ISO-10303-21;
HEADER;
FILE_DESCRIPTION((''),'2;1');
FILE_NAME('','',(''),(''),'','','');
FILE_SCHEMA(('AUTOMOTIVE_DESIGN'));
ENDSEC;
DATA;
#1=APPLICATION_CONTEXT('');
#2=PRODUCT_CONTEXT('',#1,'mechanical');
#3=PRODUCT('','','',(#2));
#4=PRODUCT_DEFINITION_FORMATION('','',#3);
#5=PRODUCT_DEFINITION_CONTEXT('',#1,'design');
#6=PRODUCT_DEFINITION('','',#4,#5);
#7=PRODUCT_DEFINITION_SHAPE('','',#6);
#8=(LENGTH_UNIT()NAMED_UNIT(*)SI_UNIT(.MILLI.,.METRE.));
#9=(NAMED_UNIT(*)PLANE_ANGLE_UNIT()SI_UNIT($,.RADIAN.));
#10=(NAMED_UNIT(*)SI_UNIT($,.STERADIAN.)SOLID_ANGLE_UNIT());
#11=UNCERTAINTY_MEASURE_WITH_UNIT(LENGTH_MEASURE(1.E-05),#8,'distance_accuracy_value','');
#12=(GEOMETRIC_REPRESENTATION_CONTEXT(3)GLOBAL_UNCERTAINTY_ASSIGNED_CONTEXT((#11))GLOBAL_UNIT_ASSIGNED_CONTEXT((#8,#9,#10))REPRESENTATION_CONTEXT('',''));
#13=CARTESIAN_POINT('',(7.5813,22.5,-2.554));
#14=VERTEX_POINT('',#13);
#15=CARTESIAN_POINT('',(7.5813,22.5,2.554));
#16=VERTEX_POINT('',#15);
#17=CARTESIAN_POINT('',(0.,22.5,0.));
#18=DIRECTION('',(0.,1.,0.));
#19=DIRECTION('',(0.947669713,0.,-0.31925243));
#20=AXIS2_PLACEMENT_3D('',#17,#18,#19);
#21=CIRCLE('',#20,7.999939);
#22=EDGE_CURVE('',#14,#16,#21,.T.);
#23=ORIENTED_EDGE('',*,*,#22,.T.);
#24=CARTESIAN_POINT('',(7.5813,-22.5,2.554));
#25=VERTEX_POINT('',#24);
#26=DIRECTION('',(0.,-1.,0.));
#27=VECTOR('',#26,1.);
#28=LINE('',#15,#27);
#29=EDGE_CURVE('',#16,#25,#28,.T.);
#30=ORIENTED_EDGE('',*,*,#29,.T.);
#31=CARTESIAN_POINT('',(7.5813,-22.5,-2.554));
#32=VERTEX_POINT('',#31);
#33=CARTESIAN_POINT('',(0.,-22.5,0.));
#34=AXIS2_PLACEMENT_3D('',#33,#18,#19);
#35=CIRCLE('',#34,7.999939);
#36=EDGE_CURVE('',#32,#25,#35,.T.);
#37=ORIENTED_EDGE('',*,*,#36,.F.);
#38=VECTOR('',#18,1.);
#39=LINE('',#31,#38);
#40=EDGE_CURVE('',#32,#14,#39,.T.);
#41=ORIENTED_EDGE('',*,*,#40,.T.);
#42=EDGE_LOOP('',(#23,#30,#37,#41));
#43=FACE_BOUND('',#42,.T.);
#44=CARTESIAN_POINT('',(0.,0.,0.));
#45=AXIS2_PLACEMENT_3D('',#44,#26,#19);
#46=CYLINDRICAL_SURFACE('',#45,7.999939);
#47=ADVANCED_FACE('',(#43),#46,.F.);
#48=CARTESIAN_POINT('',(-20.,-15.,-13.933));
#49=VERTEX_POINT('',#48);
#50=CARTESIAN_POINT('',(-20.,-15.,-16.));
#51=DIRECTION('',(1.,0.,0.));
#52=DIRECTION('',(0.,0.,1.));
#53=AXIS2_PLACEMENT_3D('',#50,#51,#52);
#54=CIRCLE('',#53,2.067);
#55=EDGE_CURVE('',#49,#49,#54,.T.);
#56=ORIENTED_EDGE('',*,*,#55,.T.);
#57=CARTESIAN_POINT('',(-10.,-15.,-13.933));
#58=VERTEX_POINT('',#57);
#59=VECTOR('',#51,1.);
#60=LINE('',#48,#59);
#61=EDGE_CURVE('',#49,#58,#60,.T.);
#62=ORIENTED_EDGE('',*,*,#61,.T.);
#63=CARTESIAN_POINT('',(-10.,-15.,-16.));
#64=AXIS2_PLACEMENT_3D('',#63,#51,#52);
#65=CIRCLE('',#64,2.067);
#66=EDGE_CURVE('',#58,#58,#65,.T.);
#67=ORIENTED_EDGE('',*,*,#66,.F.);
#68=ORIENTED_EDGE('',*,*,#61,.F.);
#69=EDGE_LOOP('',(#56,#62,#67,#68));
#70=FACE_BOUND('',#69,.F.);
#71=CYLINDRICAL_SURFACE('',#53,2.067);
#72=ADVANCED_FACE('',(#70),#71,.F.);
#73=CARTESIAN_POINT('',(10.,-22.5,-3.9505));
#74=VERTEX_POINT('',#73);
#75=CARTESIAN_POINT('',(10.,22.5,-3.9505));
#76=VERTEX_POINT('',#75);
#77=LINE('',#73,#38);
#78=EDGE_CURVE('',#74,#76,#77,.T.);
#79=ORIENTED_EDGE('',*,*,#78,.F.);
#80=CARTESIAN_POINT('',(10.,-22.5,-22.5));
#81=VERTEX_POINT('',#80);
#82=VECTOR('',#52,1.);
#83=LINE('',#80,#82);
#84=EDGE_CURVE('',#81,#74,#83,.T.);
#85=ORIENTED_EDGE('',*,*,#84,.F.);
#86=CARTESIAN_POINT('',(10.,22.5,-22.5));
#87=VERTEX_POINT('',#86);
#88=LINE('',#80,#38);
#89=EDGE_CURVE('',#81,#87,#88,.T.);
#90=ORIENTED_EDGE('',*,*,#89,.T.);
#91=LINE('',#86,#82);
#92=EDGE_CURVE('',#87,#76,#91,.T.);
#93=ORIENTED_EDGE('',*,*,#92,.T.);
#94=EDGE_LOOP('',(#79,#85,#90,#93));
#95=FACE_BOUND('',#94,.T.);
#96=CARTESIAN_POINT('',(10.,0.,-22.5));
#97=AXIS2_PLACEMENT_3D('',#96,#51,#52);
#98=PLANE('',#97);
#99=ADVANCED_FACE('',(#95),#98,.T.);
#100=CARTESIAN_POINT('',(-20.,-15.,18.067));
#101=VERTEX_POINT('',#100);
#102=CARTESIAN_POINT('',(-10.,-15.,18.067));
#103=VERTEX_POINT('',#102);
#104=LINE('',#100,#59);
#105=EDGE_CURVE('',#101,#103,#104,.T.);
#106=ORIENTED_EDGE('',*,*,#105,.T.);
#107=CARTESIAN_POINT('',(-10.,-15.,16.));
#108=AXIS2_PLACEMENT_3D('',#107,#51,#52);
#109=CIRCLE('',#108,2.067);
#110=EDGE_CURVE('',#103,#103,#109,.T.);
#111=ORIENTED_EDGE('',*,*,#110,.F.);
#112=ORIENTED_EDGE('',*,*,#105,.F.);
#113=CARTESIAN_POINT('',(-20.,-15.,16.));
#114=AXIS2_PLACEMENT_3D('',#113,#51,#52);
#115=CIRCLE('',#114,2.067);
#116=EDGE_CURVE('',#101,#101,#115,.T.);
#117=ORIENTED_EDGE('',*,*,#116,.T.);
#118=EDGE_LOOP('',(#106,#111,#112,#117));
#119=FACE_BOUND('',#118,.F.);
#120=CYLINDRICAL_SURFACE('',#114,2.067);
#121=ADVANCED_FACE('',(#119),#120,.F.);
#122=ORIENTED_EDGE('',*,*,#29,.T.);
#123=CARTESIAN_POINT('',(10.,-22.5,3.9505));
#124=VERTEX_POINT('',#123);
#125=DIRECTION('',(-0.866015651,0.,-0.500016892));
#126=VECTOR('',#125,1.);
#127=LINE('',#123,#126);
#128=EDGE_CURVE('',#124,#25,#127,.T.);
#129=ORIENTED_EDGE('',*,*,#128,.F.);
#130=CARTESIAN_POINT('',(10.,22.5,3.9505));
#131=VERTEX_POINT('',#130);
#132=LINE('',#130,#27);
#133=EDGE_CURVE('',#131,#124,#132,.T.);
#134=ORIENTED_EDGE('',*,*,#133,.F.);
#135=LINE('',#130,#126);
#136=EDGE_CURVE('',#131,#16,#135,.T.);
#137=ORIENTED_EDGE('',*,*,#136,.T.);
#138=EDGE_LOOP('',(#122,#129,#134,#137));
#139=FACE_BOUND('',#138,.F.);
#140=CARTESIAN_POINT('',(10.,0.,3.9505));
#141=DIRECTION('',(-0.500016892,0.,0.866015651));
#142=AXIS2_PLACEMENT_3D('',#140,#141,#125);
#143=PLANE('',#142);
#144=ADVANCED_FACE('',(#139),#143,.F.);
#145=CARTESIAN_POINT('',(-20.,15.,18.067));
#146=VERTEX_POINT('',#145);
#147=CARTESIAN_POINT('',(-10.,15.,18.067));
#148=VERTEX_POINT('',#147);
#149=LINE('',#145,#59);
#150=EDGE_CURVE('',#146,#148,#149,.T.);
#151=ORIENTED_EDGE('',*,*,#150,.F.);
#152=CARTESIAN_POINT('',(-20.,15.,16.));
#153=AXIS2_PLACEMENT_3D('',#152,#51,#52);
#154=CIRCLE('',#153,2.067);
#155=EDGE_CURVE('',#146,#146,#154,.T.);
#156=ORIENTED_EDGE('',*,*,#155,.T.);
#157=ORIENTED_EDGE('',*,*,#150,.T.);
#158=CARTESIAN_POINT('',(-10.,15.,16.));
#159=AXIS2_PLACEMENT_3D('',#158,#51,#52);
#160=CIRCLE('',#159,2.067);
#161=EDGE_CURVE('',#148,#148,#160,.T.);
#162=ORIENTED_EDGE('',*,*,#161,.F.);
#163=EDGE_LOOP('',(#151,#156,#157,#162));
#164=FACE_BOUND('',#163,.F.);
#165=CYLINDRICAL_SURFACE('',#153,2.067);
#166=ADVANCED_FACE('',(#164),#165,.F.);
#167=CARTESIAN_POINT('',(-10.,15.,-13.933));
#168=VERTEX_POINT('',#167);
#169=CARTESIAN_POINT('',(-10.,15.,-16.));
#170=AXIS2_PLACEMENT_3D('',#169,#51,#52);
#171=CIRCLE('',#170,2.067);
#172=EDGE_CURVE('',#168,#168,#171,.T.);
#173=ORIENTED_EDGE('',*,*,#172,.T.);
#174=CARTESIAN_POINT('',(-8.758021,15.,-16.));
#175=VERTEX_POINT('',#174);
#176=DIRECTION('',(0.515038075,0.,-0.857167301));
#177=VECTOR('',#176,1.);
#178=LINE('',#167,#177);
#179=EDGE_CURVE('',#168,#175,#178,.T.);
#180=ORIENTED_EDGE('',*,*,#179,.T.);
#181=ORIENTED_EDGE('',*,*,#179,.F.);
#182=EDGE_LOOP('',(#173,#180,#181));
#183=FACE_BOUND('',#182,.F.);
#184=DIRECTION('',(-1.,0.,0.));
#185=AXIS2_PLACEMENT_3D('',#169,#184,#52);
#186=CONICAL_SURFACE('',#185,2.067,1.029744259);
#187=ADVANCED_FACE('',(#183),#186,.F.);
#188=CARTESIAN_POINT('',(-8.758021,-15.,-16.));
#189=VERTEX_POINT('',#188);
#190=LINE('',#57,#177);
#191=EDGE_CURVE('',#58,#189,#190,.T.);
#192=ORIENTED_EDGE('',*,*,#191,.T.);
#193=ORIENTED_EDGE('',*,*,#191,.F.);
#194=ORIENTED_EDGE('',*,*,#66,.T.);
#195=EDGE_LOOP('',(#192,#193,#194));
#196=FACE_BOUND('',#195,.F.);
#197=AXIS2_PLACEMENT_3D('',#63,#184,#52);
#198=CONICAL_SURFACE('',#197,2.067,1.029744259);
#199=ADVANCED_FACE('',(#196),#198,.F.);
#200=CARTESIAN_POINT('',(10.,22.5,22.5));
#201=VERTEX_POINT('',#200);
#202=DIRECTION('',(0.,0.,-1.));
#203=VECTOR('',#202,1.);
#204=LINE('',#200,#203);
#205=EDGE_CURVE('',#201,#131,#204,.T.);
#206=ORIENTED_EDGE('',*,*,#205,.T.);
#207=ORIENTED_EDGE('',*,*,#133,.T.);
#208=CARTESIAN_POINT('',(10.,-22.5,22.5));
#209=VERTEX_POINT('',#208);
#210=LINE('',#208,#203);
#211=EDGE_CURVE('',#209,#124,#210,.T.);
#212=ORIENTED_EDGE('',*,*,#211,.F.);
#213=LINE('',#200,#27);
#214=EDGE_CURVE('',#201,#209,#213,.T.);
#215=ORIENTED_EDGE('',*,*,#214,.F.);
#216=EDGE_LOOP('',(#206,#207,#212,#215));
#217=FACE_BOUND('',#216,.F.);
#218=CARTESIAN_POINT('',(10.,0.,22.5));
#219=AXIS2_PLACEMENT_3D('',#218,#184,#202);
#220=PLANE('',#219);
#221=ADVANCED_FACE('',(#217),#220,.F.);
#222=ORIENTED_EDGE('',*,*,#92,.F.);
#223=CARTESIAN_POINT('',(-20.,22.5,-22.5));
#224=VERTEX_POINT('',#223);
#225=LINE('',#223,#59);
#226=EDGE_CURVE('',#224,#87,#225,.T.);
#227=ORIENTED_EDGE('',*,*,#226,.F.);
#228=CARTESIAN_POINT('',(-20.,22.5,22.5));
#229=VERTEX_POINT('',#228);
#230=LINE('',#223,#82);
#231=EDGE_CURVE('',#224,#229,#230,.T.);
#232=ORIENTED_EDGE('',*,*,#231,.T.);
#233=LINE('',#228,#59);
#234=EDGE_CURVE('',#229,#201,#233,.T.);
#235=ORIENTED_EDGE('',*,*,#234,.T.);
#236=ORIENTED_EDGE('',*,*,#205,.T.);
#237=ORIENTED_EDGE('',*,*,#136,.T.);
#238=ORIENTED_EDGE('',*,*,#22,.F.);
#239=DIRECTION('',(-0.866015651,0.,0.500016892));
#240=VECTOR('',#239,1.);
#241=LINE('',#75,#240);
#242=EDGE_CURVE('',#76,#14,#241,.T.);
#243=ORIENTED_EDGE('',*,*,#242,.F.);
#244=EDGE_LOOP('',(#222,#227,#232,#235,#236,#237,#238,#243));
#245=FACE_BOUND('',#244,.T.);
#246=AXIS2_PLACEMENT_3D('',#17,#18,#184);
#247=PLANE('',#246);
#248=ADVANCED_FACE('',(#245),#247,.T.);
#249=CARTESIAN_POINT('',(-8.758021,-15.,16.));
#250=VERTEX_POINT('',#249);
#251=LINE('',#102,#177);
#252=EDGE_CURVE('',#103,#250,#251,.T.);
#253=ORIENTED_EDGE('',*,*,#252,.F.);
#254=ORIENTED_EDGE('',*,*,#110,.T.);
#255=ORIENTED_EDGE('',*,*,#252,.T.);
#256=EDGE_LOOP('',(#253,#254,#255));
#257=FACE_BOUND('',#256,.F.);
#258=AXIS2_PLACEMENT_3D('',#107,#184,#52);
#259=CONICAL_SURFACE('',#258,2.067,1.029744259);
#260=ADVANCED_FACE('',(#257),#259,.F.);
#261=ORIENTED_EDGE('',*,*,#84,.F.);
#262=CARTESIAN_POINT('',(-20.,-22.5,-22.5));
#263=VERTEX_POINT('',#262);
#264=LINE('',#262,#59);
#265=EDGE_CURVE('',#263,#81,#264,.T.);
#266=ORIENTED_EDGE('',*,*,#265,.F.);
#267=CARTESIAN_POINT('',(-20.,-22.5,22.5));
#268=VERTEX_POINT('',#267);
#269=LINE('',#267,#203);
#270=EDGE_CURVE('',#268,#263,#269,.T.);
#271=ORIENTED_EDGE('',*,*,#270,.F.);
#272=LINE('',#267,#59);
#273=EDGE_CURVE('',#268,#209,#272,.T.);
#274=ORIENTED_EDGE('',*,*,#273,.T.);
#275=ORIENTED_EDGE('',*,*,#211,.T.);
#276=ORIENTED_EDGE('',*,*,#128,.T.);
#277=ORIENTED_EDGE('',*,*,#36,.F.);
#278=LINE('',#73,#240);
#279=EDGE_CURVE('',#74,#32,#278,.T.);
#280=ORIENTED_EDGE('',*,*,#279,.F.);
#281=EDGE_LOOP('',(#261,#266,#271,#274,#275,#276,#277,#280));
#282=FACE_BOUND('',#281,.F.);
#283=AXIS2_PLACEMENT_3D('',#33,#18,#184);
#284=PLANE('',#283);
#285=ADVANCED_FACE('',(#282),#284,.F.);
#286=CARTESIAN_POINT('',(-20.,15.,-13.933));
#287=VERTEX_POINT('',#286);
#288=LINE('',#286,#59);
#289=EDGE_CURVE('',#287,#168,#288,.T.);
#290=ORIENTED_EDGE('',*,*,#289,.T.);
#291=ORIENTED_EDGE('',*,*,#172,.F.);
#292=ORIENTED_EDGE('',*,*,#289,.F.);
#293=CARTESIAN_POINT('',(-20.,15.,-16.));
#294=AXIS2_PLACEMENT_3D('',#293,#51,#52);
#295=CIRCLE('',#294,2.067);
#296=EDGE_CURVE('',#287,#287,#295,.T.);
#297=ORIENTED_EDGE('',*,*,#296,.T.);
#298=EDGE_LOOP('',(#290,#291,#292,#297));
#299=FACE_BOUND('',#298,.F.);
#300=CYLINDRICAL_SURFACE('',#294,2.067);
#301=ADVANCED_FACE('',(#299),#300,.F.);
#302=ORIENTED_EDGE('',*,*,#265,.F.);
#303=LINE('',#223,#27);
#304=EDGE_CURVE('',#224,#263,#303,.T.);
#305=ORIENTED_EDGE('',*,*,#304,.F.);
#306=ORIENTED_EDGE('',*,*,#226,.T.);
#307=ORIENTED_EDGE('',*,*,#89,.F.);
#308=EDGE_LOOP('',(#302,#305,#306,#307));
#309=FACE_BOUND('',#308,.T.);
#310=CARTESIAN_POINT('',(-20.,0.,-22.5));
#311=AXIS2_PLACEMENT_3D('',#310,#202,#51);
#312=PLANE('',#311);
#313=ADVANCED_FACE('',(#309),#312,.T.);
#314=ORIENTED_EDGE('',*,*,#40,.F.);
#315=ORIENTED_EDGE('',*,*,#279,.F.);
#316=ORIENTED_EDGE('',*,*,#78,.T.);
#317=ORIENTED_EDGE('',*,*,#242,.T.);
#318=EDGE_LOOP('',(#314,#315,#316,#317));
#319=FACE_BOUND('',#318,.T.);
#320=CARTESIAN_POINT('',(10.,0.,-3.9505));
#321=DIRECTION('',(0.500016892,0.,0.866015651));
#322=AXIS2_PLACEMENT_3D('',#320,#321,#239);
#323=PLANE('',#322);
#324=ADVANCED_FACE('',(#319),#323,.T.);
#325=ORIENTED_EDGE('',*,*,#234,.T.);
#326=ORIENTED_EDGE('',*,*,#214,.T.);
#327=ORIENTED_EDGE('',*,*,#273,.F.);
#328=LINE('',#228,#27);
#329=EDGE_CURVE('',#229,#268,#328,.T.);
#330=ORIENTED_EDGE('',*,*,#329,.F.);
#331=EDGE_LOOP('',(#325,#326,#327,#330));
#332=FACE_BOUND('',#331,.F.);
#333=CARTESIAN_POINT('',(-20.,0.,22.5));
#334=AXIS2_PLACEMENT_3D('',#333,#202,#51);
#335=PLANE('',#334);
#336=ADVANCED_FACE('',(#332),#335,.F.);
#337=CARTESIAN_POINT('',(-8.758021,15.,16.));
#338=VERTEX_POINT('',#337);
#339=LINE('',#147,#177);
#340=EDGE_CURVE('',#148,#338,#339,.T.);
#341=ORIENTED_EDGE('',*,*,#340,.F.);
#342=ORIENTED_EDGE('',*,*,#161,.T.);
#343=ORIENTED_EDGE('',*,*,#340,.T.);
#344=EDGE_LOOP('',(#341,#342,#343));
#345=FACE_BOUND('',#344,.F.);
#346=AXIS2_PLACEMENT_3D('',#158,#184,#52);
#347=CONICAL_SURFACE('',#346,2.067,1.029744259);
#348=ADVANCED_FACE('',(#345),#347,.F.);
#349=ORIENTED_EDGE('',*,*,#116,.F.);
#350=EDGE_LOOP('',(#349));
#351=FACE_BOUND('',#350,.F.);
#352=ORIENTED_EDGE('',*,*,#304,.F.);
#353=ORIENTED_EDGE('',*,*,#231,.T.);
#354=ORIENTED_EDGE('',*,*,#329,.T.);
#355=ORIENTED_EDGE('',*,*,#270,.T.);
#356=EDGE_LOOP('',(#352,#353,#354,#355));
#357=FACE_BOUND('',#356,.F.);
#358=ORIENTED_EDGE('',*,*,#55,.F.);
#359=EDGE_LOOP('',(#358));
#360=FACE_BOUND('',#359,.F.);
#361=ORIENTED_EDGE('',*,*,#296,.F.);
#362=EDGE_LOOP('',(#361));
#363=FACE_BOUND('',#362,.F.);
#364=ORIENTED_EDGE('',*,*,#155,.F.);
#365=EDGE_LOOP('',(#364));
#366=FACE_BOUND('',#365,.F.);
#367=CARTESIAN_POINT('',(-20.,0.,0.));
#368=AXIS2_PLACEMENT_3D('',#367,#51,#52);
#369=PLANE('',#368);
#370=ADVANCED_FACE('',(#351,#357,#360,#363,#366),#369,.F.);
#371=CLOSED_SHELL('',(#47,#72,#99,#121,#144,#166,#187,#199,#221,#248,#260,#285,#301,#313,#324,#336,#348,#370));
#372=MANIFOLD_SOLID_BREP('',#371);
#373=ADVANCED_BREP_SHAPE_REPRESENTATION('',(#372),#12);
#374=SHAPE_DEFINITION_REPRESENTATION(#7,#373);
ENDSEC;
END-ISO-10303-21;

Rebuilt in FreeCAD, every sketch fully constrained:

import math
import FreeCAD as App
import Part
import Sketcher

V = App.Vector
Q = App.Units.Quantity

doc = App.newDocument("Part")
body = doc.addObject("PartDesign::Body", "Body")

# Sketch on XZ plane
sketch1 = body.newObject("Sketcher::SketchObject", "Sketch")
sketch1.AttachmentSupport = (doc.getObject("XZ_Plane"), [""])
sketch1.MapMode = "FlatFace"
sketch1.addGeometry([
    Part.ArcOfCircle(Part.Circle(V(0, 0, 0), V(0, 0, 1), 8), math.radians(19), math.radians(341)),  # 0
    Part.LineSegment(V(7.6, -2.6, 0), V(10, -4, 0)),  # 1
    Part.LineSegment(V(10, -4, 0), V(10, -22.5, 0)),  # 2
    Part.LineSegment(V(10, -22.5, 0), V(-20, -22.5, 0)),  # 3
    Part.LineSegment(V(-20, -22.5, 0), V(-20, 22.5, 0)),  # 4
    Part.LineSegment(V(-20, 22.5, 0), V(10, 22.5, 0)),  # 5
    Part.LineSegment(V(10, 22.5, 0), V(10, 4, 0)),  # 6
    Part.LineSegment(V(10, 4, 0), V(7.6, 2.6, 0)),  # 7
], False)
sketch1.addConstraint([
    Sketcher.Constraint("Coincident", 0, 2, 1, 1),
    Sketcher.Constraint("Coincident", 1, 2, 2, 1),
    Sketcher.Constraint("Coincident", 2, 2, 3, 1),
    Sketcher.Constraint("Coincident", 3, 2, 4, 1),
    Sketcher.Constraint("Coincident", 4, 2, 5, 1),
    Sketcher.Constraint("Coincident", 5, 2, 6, 1),
    Sketcher.Constraint("Coincident", 6, 2, 7, 1),
    Sketcher.Constraint("Coincident", 7, 2, 0, 1),
    Sketcher.Constraint("Vertical", 2),
    Sketcher.Constraint("Horizontal", 3),
    Sketcher.Constraint("Vertical", 4),
    Sketcher.Constraint("Horizontal", 5),
    Sketcher.Constraint("Vertical", 6),
    Sketcher.Constraint("Coincident", 0, 3, -1, 1),
    Sketcher.Constraint("Symmetric", 2, 2, 5, 2, -1),
    Sketcher.Constraint("Vertical", 0, 2, 7, 2),
    Sketcher.Constraint("Equal", 2, 6),
    Sketcher.Constraint("Radius", 0, Q("8 mm")),
    Sketcher.Constraint("DistanceX", 3, 2, 3, 1, Q("30 mm")),
    Sketcher.Constraint("DistanceX", 3, 2, -1, 1, Q("20 mm")),
    Sketcher.Constraint("DistanceY", 2, 2, -1, 1, Q("22.5 mm")),
    Sketcher.Constraint("Angle", 1, Q("-30.001 deg")),
    Sketcher.Constraint("Distance", 1, Q("2.793 mm")),
])
pad1 = body.newObject("PartDesign::Pad", "Pad")
pad1.Profile = sketch1
pad1.Length = 45
pad1.Midplane = True

# Sketch on YZ plane
sketch2 = body.newObject("Sketcher::SketchObject", "Sketch001")
sketch2.AttachmentSupport = (doc.getObject("YZ_Plane"), [""])
sketch2.MapMode = "FlatFace"
sketch2.AttachmentOffset = App.Placement(V(0, 0, -20), App.Rotation())
sketch2.addGeometry([
    Part.Circle(V(15, 16, 0), V(0, 0, 1), 2.1),
    Part.Circle(V(15, -16, 0), V(0, 0, 1), 2.1),
    Part.Circle(V(-15, 16, 0), V(0, 0, 1), 2.1),
    Part.Circle(V(-15, -16, 0), V(0, 0, 1), 2.1),
], False)
sketch2.addConstraint([
    Sketcher.Constraint("Equal", 0, 1),
    Sketcher.Constraint("Equal", 1, 2),
    Sketcher.Constraint("Equal", 2, 3),
    Sketcher.Constraint("Symmetric", 1, 3, 2, 3, -1, 1),
    Sketcher.Constraint("Symmetric", 0, 3, 3, 3, -1, 1),
    Sketcher.Constraint("Symmetric", 0, 3, 2, 3, -2),
    Sketcher.Constraint("Diameter", 0, Q("4.134 mm")),
    Sketcher.Constraint("DistanceX", -1, 1, 0, 3, Q("15 mm")),
    Sketcher.Constraint("DistanceY", -1, 1, 0, 3, Q("16 mm")),
])
doc.recompute()
hole = body.newObject("PartDesign::Hole", "Hole")
hole.Profile = sketch2
hole.ThreadType = "None"
hole.Diameter = 4.134
hole.DepthType = "Dimension"
hole.Depth = 10
hole.DrillPoint = "Angled"
hole.DrillPointAngle = 118
hole.Reversed = True

doc.recompute()
